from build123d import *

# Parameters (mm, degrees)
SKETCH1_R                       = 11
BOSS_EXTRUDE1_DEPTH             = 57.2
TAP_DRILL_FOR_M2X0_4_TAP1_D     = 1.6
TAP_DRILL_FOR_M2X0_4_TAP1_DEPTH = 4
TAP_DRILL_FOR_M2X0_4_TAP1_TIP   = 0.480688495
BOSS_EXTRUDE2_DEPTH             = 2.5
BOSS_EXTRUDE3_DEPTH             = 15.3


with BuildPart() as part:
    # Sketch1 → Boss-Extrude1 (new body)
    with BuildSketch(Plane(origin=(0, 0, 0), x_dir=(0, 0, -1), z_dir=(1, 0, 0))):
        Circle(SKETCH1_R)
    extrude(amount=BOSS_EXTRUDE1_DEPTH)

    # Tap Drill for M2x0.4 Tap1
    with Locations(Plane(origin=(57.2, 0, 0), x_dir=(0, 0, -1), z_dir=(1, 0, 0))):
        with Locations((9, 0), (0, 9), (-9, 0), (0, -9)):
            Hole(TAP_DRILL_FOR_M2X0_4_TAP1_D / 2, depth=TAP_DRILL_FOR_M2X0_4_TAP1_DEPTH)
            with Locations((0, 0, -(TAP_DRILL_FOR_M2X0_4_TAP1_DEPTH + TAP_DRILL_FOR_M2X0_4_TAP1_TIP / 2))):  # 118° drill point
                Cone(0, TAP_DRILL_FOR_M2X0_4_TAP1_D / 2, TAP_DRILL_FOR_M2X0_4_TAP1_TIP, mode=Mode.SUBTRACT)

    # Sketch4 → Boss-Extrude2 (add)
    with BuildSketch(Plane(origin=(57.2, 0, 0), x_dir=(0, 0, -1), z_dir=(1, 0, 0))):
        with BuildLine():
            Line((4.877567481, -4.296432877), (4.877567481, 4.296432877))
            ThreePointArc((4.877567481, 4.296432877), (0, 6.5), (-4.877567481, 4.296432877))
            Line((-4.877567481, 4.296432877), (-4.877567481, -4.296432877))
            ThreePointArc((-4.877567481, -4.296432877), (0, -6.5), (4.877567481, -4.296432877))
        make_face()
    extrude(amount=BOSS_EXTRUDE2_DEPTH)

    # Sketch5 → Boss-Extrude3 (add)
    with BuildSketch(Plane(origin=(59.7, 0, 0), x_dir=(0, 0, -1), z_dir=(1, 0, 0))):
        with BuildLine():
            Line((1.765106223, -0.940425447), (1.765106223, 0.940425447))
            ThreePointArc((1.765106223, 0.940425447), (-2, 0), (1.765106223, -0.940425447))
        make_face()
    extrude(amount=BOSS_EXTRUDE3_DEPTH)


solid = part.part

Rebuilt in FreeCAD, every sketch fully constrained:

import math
import FreeCAD as App
import Part
import Sketcher
Q = App.Units.Quantity

doc = App.newDocument("Part")
body = doc.addObject("PartDesign::Body", "Body")

# Sketch on YZ plane
sketch1 = body.newObject("Sketcher::SketchObject", "Sketch")
sketch1.AttachmentSupport = (doc.getObject("YZ_Plane"), [""])
sketch1.MapMode = "FlatFace"
sketch1.addGeometry(Part.Circle(App.Vector(0, 0, 0), App.Vector(0, 0, 1), 11), False)
sketch1.addConstraint([
    Sketcher.Constraint("Coincident", 0, 3, -1, 1),
    Sketcher.Constraint("Diameter", 0, Q("22 mm")),
])
pad1 = body.newObject("PartDesign::Pad", "Pad")
pad1.Profile = sketch1
pad1.Length = 57.2

# Sketch on YZ plane
sketch2 = body.newObject("Sketcher::SketchObject", "Sketch001")
sketch2.AttachmentSupport = (doc.getObject("YZ_Plane"), [""])
sketch2.MapMode = "FlatFace"
sketch2.AttachmentOffset = App.Placement(App.Vector(0, 0, 57.2), App.Rotation())
sketch2.addGeometry([
    Part.Circle(App.Vector(0, -9, 0), App.Vector(0, 0, 1), 0.8),
    Part.Circle(App.Vector(9, 0, 0), App.Vector(0, 0, 1), 0.8),
    Part.Circle(App.Vector(0, 9, 0), App.Vector(0, 0, 1), 0.8),
    Part.Circle(App.Vector(-9, 0, 0), App.Vector(0, 0, 1), 0.8),
], False)
sketch2.addConstraint([
    Sketcher.Constraint("Equal", 0, 1),
    Sketcher.Constraint("Equal", 1, 2),
    Sketcher.Constraint("Equal", 2, 3),
    Sketcher.Constraint("Symmetric", 0, 3, 2, 3, -1, 1),
    Sketcher.Constraint("Symmetric", 1, 3, 3, 3, -1, 1),
    Sketcher.Constraint("PointOnObject", 0, 3, -2),
    Sketcher.Constraint("PointOnObject", 1, 3, -1),
    Sketcher.Constraint("Diameter", 0, Q("1.6 mm")),
    Sketcher.Constraint("DistanceY", 0, 3, -1, 1, Q("9 mm")),
    Sketcher.Constraint("DistanceX", -1, 1, 1, 3, Q("9 mm")),
])
doc.recompute()
hole = body.newObject("PartDesign::Hole", "Hole")
hole.Profile = sketch2
hole.ThreadType = "None"
hole.Diameter = 1.6
hole.DepthType = "Dimension"
hole.Depth = 4
hole.DrillPoint = "Angled"
hole.DrillPointAngle = 118

# Sketch on YZ plane
sketch3 = body.newObject("Sketcher::SketchObject", "Sketch002")
sketch3.AttachmentSupport = (doc.getObject("YZ_Plane"), [""])
sketch3.MapMode = "FlatFace"
sketch3.AttachmentOffset = App.Placement(App.Vector(0, 0, 57.2), App.Rotation())
sketch3.addGeometry([
    Part.LineSegment(App.Vector(-4, -5, 0), App.Vector(4, -5, 0)),
    Part.ArcOfCircle(Part.Circle(App.Vector(0, 0, 0), App.Vector(0, 0, 1), 6), math.radians(-49), math.radians(49)),
    Part.LineSegment(App.Vector(4, 5, 0), App.Vector(-4, 5, 0)),
    Part.ArcOfCircle(Part.Circle(App.Vector(0, 0, 0), App.Vector(0, 0, 1), 6), math.radians(131), math.radians(229)),
], False)
sketch3.addConstraint([
    Sketcher.Constraint("Coincident", 0, 2, 1, 1),
    Sketcher.Constraint("Coincident", 1, 2, 2, 1),
    Sketcher.Constraint("Coincident", 2, 2, 3, 1),
    Sketcher.Constraint("Coincident", 3, 2, 0, 1),
    Sketcher.Constraint("Horizontal", 0),
    Sketcher.Constraint("Horizontal", 2),
    Sketcher.Constraint("Coincident", 1, 3, -1, 1),
    Sketcher.Constraint("Coincident", 3, 3, -1, 1),
    Sketcher.Constraint("Equal", 1, 3),
    Sketcher.Constraint("Vertical", 0, 2, 1, 2),
    Sketcher.Constraint("Radius", 1, Q("6.5 mm")),
    Sketcher.Constraint("DistanceX", 0, 1, 0, 2, Q("8.592866 mm")),
])
pad2 = body.newObject("PartDesign::Pad", "Pad001")
pad2.Profile = sketch3
pad2.Length = 2.5

# Sketch on YZ plane
sketch4 = body.newObject("Sketcher::SketchObject", "Sketch003")
sketch4.AttachmentSupport = (doc.getObject("YZ_Plane"), [""])
sketch4.MapMode = "FlatFace"
sketch4.AttachmentOffset = App.Placement(App.Vector(0, 0, 59.7), App.Rotation())
sketch4.addGeometry([
    Part.LineSegment(App.Vector(-0.9, -1.8, 0), App.Vector(0.9, -1.8, 0)),
    Part.ArcOfCircle(Part.Circle(App.Vector(0, 0, 0), App.Vector(0, 0, 1), 2), math.radians(-62), math.radians(242)),
], False)
sketch4.addConstraint([
    Sketcher.Constraint("Coincident", 0, 1, 1, 2),
    Sketcher.Constraint("Coincident", 1, 1, 0, 2),
    Sketcher.Constraint("Horizontal", 0),
    Sketcher.Constraint("Coincident", 1, 3, -1, 1),
    Sketcher.Constraint("Radius", 1, Q("2 mm")),
    Sketcher.Constraint("DistanceX", 0, 1, 0, 2, Q("1.880851 mm")),
])
pad3 = body.newObject("PartDesign::Pad", "Pad002")
pad3.Profile = sketch4
pad3.Length = 15.3

doc.recompute()
